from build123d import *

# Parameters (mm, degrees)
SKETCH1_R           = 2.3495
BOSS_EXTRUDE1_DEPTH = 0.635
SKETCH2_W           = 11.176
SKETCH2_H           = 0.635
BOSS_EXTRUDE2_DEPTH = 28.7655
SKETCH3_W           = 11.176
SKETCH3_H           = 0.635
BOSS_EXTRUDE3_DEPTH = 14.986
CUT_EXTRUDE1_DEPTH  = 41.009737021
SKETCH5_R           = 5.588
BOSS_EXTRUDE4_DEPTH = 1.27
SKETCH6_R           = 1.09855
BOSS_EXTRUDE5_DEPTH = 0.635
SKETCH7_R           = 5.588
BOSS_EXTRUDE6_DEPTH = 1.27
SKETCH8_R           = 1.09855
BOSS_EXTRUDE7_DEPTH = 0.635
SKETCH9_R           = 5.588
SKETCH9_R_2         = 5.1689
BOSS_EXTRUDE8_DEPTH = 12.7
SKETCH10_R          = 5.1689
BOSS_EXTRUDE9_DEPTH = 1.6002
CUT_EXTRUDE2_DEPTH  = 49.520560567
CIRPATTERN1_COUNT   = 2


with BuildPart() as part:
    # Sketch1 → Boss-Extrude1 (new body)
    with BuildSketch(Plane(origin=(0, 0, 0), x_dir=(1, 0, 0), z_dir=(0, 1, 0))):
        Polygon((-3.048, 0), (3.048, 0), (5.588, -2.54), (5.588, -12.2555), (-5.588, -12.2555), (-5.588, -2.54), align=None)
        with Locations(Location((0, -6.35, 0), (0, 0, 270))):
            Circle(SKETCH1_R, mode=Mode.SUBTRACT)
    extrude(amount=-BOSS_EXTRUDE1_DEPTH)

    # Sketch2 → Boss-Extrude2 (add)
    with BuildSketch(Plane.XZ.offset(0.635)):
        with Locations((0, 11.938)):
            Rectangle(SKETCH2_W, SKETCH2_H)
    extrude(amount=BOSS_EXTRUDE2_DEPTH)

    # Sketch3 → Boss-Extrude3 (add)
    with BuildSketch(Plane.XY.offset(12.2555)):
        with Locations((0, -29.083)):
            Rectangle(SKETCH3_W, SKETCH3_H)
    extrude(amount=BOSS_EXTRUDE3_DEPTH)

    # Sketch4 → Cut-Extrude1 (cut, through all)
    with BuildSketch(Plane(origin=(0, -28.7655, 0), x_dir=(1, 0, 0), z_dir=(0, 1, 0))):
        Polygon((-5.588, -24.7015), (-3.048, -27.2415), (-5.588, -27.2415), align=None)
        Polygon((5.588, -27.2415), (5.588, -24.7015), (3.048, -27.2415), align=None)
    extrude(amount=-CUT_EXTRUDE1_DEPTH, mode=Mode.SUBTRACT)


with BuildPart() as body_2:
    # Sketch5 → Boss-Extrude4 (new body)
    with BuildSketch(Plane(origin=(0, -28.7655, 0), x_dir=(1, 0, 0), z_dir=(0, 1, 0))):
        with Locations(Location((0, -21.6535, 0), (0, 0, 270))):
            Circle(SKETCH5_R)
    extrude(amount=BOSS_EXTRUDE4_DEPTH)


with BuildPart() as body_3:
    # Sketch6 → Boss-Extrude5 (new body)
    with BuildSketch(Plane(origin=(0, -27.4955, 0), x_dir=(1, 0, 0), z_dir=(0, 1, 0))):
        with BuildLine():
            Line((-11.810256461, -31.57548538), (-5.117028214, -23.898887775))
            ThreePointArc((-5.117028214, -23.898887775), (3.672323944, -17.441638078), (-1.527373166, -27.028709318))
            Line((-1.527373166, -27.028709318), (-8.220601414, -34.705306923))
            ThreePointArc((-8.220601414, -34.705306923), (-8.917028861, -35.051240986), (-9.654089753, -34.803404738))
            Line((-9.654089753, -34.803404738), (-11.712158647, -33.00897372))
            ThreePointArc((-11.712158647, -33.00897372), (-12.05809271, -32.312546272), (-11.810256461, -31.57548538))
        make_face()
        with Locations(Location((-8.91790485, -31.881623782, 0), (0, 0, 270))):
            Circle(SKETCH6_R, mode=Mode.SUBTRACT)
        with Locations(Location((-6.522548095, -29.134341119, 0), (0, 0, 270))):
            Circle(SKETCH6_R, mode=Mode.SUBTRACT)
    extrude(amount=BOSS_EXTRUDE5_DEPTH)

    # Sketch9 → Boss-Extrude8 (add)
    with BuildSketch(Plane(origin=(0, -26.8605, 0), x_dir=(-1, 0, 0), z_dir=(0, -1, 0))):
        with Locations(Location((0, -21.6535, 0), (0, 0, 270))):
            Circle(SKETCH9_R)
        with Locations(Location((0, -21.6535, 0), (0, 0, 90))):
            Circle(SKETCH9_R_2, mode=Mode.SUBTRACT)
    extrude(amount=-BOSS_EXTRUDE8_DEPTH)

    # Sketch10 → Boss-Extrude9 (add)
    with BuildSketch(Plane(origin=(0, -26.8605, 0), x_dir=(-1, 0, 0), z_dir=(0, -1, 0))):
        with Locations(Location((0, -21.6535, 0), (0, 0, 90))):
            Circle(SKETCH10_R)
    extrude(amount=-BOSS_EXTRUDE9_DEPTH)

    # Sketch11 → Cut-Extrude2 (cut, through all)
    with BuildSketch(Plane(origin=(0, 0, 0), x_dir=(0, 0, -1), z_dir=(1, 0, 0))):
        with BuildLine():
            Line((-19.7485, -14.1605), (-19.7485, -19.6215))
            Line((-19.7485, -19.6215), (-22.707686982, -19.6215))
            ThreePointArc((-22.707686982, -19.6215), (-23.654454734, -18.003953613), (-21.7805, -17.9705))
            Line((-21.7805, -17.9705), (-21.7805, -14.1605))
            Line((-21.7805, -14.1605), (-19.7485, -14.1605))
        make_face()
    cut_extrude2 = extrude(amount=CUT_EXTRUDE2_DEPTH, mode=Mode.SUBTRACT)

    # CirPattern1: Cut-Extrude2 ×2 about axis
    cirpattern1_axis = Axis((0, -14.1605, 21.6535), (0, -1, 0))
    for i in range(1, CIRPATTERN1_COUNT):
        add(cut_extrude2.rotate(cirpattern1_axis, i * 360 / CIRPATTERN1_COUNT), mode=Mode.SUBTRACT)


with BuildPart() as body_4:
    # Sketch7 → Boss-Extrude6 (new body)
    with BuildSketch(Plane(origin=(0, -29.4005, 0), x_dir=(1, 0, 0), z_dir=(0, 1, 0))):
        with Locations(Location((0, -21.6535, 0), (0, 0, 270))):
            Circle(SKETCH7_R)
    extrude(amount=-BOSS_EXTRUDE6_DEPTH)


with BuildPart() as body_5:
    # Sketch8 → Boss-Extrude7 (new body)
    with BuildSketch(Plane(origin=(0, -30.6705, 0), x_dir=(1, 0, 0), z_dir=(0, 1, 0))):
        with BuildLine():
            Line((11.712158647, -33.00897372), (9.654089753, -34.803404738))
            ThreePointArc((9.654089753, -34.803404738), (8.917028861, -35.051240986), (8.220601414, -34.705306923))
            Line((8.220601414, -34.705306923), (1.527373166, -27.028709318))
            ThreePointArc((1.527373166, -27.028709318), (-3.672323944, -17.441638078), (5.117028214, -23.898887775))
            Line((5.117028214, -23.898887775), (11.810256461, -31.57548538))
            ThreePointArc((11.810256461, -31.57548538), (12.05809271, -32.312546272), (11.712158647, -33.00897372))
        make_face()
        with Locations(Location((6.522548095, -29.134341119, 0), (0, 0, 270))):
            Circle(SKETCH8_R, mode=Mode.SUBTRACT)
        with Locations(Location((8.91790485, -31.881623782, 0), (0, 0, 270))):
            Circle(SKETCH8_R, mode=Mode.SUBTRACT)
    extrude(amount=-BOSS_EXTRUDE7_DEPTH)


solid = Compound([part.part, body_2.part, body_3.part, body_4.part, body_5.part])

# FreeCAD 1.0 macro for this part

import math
import FreeCAD as App
import Part
import Sketcher

V = App.Vector
Q = App.Units.Quantity


def add_polygon(sketch, points):
    """Adds a closed chain of lines whose ends are joined by coincident constraints."""
    first, n = sketch.GeometryCount, len(points)
    for a, b in zip(points, points[1:] + points[:1]):
        sketch.addGeometry(Part.LineSegment(App.Vector(*a, 0), App.Vector(*b, 0)), False)
    for i in range(n):
        sketch.addConstraint(Sketcher.Constraint("Coincident", first + i, 2, first + (i + 1) % n, 1))

doc = App.newDocument("Part")
body = doc.addObject("PartDesign::Body", "Body")

# Sketch on XZ plane
sketch1 = body.newObject("Sketcher::SketchObject", "Sketch")
sketch1.AttachmentSupport = (doc.getObject("XZ_Plane"), [""])
sketch1.MapMode = "FlatFace"
add_polygon(sketch1, [(3, 0), (-3, 0), (-5.6, 2.5), (-5.6, 12.3), (5.6, 12.3), (5.6, 2.5)])  # lines 0-5
sketch1.addGeometry(Part.Circle(V(0, 6.3, 0), V(0, 0, 1), 2.3), False)  # 6
sketch1.addConstraint(Sketcher.Constraint("Horizontal", 0))
sketch1.addConstraint(Sketcher.Constraint("Vertical", 2))
sketch1.addConstraint(Sketcher.Constraint("Horizontal", 3))
sketch1.addConstraint(Sketcher.Constraint("Vertical", 4))
sketch1.addConstraint(Sketcher.Constraint("Symmetric", 0, 2, 5, 2, -1, 1))
sketch1.addConstraint(Sketcher.Constraint("Symmetric", 1, 2, 4, 2, -2))
sketch1.addConstraint(Sketcher.Constraint("PointOnObject", 6, 3, -2))
sketch1.addConstraint(Sketcher.Constraint("Perpendicular", 1, 5))
sketch1.addConstraint(Sketcher.Constraint("Diameter", 6, Q("0.185 in")))
sketch1.addConstraint(Sketcher.Constraint("DistanceX", 0, 2, 0, 1, Q("0.24 in")))
sketch1.addConstraint(Sketcher.Constraint("DistanceX", 3, 1, 3, 2, Q("0.44 in")))
sketch1.addConstraint(Sketcher.Constraint("DistanceY", -1, 1, 6, 3, Q("0.25 in")))
sketch1.addConstraint(Sketcher.Constraint("DistanceY", 2, 1, 2, 2, Q("0.3825 in")))
pad1 = body.newObject("PartDesign::Pad", "Pad")
pad1.Profile = sketch1
pad1.Length = Q("0.025 in")

# Sketch on XZ plane
sketch2 = body.newObject("Sketcher::SketchObject", "Sketch001")
sketch2.AttachmentSupport = (doc.getObject("XZ_Plane"), [""])
sketch2.MapMode = "FlatFace"
sketch2.AttachmentOffset = App.Placement(V(0, 0, 0.025 * 25.4), App.Rotation())
add_polygon(sketch2, [(-5.6, 12.3), (-5.6, 11.6), (5.6, 11.6), (5.6, 12.3)])  # lines 0-3
sketch2.addConstraint(Sketcher.Constraint("Vertical", 0))
sketch2.addConstraint(Sketcher.Constraint("Horizontal", 1))
sketch2.addConstraint(Sketcher.Constraint("Vertical", 2))
sketch2.addConstraint(Sketcher.Constraint("Horizontal", 3))
sketch2.addConstraint(Sketcher.Constraint("DistanceX", 1, 1, 1, 2, Q("0.44 in")))
sketch2.addConstraint(Sketcher.Constraint("DistanceY", 0, 2, 0, 1, Q("0.025 in")))
sketch2.addConstraint(Sketcher.Constraint("DistanceX", 0, 2, -1, 1, Q("0.22 in")))
sketch2.addConstraint(Sketcher.Constraint("DistanceY", -1, 1, 0, 2, Q("0.4575 in")))
pad2 = body.newObject("PartDesign::Pad", "Pad001")
pad2.Profile = sketch2
pad2.Length = Q("1.1325 in")

# Sketch on XY plane
sketch3 = body.newObject("Sketcher::SketchObject", "Sketch002")
sketch3.AttachmentSupport = (doc.getObject("XY_Plane"), [""])
sketch3.MapMode = "FlatFace"
sketch3.AttachmentOffset = App.Placement(V(0, 0, 0.4825 * 25.4), App.Rotation())
add_polygon(sketch3, [(-5.6, -28.8), (-5.6, -29.4), (5.6, -29.4), (5.6, -28.8)])  # lines 0-3
sketch3.addConstraint(Sketcher.Constraint("Vertical", 0))
sketch3.addConstraint(Sketcher.Constraint("Horizontal", 1))
sketch3.addConstraint(Sketcher.Constraint("Vertical", 2))
sketch3.addConstraint(Sketcher.Constraint("Horizontal", 3))
sketch3.addConstraint(Sketcher.Constraint("DistanceX", 1, 1, 1, 2, Q("0.44 in")))
sketch3.addConstraint(Sketcher.Constraint("DistanceY", 0, 2, 0, 1, Q("0.025 in")))
sketch3.addConstraint(Sketcher.Constraint("DistanceX", 0, 2, -1, 1, Q("0.22 in")))
sketch3.addConstraint(Sketcher.Constraint("DistanceY", 0, 2, -1, 1, Q("1.1575 in")))
pad3 = body.newObject("PartDesign::Pad", "Pad002")
pad3.Profile = sketch3
pad3.Length = Q("0.59 in")

# Sketch on XZ plane
sketch4 = body.newObject("Sketcher::SketchObject", "Sketch003")
sketch4.AttachmentSupport = (doc.getObject("XZ_Plane"), [""])
sketch4.MapMode = "FlatFace"
sketch4.AttachmentOffset = App.Placement(V(0, 0, 1.1325 * 25.4), App.Rotation())
add_polygon(sketch4, [(-3, 27.2), (-5.6, 24.7), (-5.6, 27.2)])  # lines 0-2
add_polygon(sketch4, [(5.6, 27.2), (5.6, 24.7), (3, 27.2)])  # lines 3-5
sketch4.addConstraint(Sketcher.Constraint("Vertical", 1))
sketch4.addConstraint(Sketcher.Constraint("Horizontal", 2))
sketch4.addConstraint(Sketcher.Constraint("Vertical", 3))
sketch4.addConstraint(Sketcher.Constraint("Horizontal", 5))
sketch4.addConstraint(Sketcher.Constraint("Symmetric", 0, 2, 3, 2, -2))
sketch4.addConstraint(Sketcher.Constraint("Symmetric", 2, 2, 4, 2, -2))
sketch4.addConstraint(Sketcher.Constraint("Perpendicular", 0, 4))
sketch4.addConstraint(Sketcher.Constraint("DistanceX", 2, 1, 2, 2, Q("0.1 in")))
sketch4.addConstraint(Sketcher.Constraint("DistanceX", 0, 2, -1, 1, Q("0.22 in")))
sketch4.addConstraint(Sketcher.Constraint("DistanceY", -1, 1, 0, 2, Q("0.9725 in")))
pocket1 = body.newObject("PartDesign::Pocket", "Pocket")
pocket1.Profile = sketch4
pocket1.Type = "ThroughAll"
pocket1.Reversed = True
body2 = doc.addObject("PartDesign::Body", "Body001")

# Sketch on XZ plane
sketch5 = body2.newObject("Sketcher::SketchObject", "Sketch004")
sketch5.AttachmentSupport = (doc.getObject("XZ_Plane001"), [""])
sketch5.MapMode = "FlatFace"
sketch5.AttachmentOffset = App.Placement(V(0, 0, 1.1325 * 25.4), App.Rotation())
sketch5.addGeometry(Part.Circle(V(0, 22, 0), V(0, 0, 1), 6), False)
sketch5.addConstraint(Sketcher.Constraint("PointOnObject", 0, 3, -2))
sketch5.addConstraint(Sketcher.Constraint("Diameter", 0, Q("0.44 in")))
sketch5.addConstraint(Sketcher.Constraint("DistanceY", -1, 1, 0, 3, Q("0.8525 in")))
pad4 = body2.newObject("PartDesign::Pad", "Pad003")
pad4.Profile = sketch5
pad4.Length = Q("0.05 in")
pad4.Reversed = True
body3 = doc.addObject("PartDesign::Body", "Body002")

# Sketch on XZ plane
sketch6 = body3.newObject("Sketcher::SketchObject", "Sketch005")
sketch6.AttachmentSupport = (doc.getObject("XZ_Plane002"), [""])
sketch6.MapMode = "FlatFace"
sketch6.AttachmentOffset = App.Placement(V(0, 0, 1.0825 * 25.4), App.Rotation())
sketch6.addGeometry(Part.LineSegment(V(-5.1, 23.9, 0), V(-11.8, 31.6, 0)), False)
sketch6.addGeometry(Part.ArcOfCircle(Part.Circle(V(-11, 32.2, 0), V(0, 0, 1), 1), math.radians(131), math.radians(221)), False)
sketch6.addGeometry(Part.LineSegment(V(-11.7, 33, 0), V(-9.7, 34.8, 0)), False)
sketch6.addGeometry(Part.ArcOfCircle(Part.Circle(V(-9, 34, 0), V(0, 0, 1), 1), math.radians(41), math.radians(131)), False)
sketch6.addGeometry(Part.LineSegment(V(-8.2, 34.7, 0), V(-1.5, 27, 0)), False)
sketch6.addGeometry(Part.ArcOfCircle(Part.Circle(V(0, 21.7, 0), V(0, 0, 1), 5.6), math.radians(156), math.radians(466)), False)
sketch6.addGeometry(Part.Circle(V(-8.9, 31.9, 0), V(0, 0, 1), 1.1), False)
sketch6.addGeometry(Part.Circle(V(-6.5, 29.1, 0), V(0, 0, 1), 1.1), False)
sketch6.addConstraint(Sketcher.Constraint("Tangent", 0, 2, 1, 2))
sketch6.addConstraint(Sketcher.Constraint("Tangent", 1, 1, 2, 1))
sketch6.addConstraint(Sketcher.Constraint("Tangent", 2, 2, 3, 2))
sketch6.addConstraint(Sketcher.Constraint("Tangent", 3, 1, 4, 1))
sketch6.addConstraint(Sketcher.Constraint("Coincident", 4, 2, 5, 2))
sketch6.addConstraint(Sketcher.Constraint("Coincident", 5, 1, 0, 1))
sketch6.addConstraint(Sketcher.Constraint("Equal", 1, 3))
sketch6.addConstraint(Sketcher.Constraint("Equal", 6, 7))
sketch6.addConstraint(Sketcher.Constraint("PointOnObject", 5, 3, -2))
sketch6.addConstraint(Sketcher.Constraint("Perpendicular", 0, 2))
sketch6.addConstraint(Sketcher.Constraint("Perpendicular", 2, 4))
sketch6.addConstraint(Sketcher.Constraint("Equal", 0, 4))
sketch6.addConstraint(Sketcher.Constraint("Radius", 1, Q("0.04 in")))
sketch6.addConstraint(Sketcher.Constraint("Radius", 5, Q("0.22 in")))
sketch6.addConstraint(Sketcher.Constraint("Diameter", 6, Q("0.0865 in")))
sketch6.addConstraint(Sketcher.Constraint("Distance", 2, Q("0.1075 in")))
sketch6.addConstraint(Sketcher.Constraint("DistanceY", -1, 1, 5, 3, Q("0.8525 in")))
sketch6.addConstraint(Sketcher.Constraint("DistanceX", 3, 1, -1, 1, Q("8.220601 mm")))
sketch6.addConstraint(Sketcher.Constraint("DistanceY", -1, 1, 1, 3, Q("32.243181 mm")))
sketch6.addConstraint(Sketcher.Constraint("DistanceX", 7, 3, -1, 1, Q("6.522548 mm")))
sketch6.addConstraint(Sketcher.Constraint("DistanceY", -1, 1, 7, 3, Q("29.134341 mm")))
sketch6.addConstraint(Sketcher.Constraint("DistanceX", 3, 3, 6, 3, Q("0.06849 mm")))
sketch6.addConstraint(Sketcher.Constraint("DistanceY", 0, 2, 6, 3, Q("0.306138 mm")))
pad5 = body3.newObject("PartDesign::Pad", "Pad004")
pad5.Profile = sketch6
pad5.Length = Q("0.025 in")
pad5.Reversed = True

# Sketch on XZ plane
sketch7 = body3.newObject("Sketcher::SketchObject", "Sketch006")
sketch7.AttachmentSupport = (doc.getObject("XZ_Plane002"), [""])
sketch7.MapMode = "FlatFace"
sketch7.AttachmentOffset = App.Placement(V(0, 0, 1.0575 * 25.4), App.Rotation())
sketch7.addGeometry(Part.Circle(V(0, 22, 0), V(0, 0, 1), 6), False)
sketch7.addGeometry(Part.Circle(V(0, 22, 0), V(0, 0, 1), 5), False)
sketch7.addConstraint(Sketcher.Constraint("Coincident", 1, 3, 0, 3))
sketch7.addConstraint(Sketcher.Constraint("PointOnObject", 0, 3, -2))
sketch7.addConstraint(Sketcher.Constraint("Diameter", 0, Q("0.44 in")))
sketch7.addConstraint(Sketcher.Constraint("Diameter", 1, Q("0.407 in")))
sketch7.addConstraint(Sketcher.Constraint("DistanceY", -1, 1, 0, 3, Q("0.8525 in")))
pad6 = body3.newObject("PartDesign::Pad", "Pad005")
pad6.Profile = sketch7
pad6.Length = Q("0.5 in")
pad6.Reversed = True

# Sketch on XZ plane
sketch8 = body3.newObject("Sketcher::SketchObject", "Sketch007")
sketch8.AttachmentSupport = (doc.getObject("XZ_Plane002"), [""])
sketch8.MapMode = "FlatFace"
sketch8.AttachmentOffset = App.Placement(V(0, 0, 1.0575 * 25.4), App.Rotation())
sketch8.addGeometry(Part.Circle(V(0, 22, 0), V(0, 0, 1), 5), False)
sketch8.addConstraint(Sketcher.Constraint("PointOnObject", 0, 3, -2))
sketch8.addConstraint(Sketcher.Constraint("Diameter", 0, Q("0.407 in")))
sketch8.addConstraint(Sketcher.Constraint("DistanceY", -1, 1, 0, 3, Q("0.8525 in")))
pad7 = body3.newObject("PartDesign::Pad", "Pad006")
pad7.Profile = sketch8
pad7.Length = Q("0.063 in")
pad7.Reversed = True

# Sketch on YZ plane
sketch9 = body3.newObject("Sketcher::SketchObject", "Sketch008")
sketch9.AttachmentSupport = (doc.getObject("YZ_Plane002"), [""])
sketch9.MapMode = "FlatFace"
sketch9.addGeometry(Part.LineSegment(V(-19.6, 19.7, 0), V(-14.2, 19.7, 0)), False)
sketch9.addGeometry(Part.LineSegment(V(-14.2, 19.7, 0), V(-14.2, 21.8, 0)), False)
sketch9.addGeometry(Part.LineSegment(V(-14.2, 21.8, 0), V(-18, 21.8, 0)), False)
sketch9.addGeometry(Part.ArcOfCircle(Part.Circle(V(-18.5, 22.7, 0), V(0, 0, 1), 1.1), math.radians(-59), math.radians(180)), False)
sketch9.addGeometry(Part.LineSegment(V(-19.6, 22.7, 0), V(-19.6, 19.7, 0)), False)
sketch9.addConstraint(Sketcher.Constraint("Coincident", 0, 2, 1, 1))
sketch9.addConstraint(Sketcher.Constraint("Coincident", 1, 2, 2, 1))
sketch9.addConstraint(Sketcher.Constraint("Coincident", 2, 2, 3, 1))
sketch9.addConstraint(Sketcher.Constraint("Tangent", 3, 2, 4, 1))
sketch9.addConstraint(Sketcher.Constraint("Coincident", 4, 2, 0, 1))
sketch9.addConstraint(Sketcher.Constraint("Horizontal", 0))
sketch9.addConstraint(Sketcher.Constraint("Vertical", 1))
sketch9.addConstraint(Sketcher.Constraint("Horizontal", 2))
sketch9.addConstraint(Sketcher.Constraint("Vertical", 4))
sketch9.addConstraint(Sketcher.Constraint("DistanceX", 2, 2, 2, 1, Q("0.15 in")))
sketch9.addConstraint(Sketcher.Constraint("DistanceY", 1, 1, 1, 2, Q("0.08 in")))
sketch9.addConstraint(Sketcher.Constraint("DistanceX", 0, 1, 0, 2, Q("0.215 in")))
sketch9.addConstraint(Sketcher.Constraint("Radius", 3, Q("1.08585 mm")))
sketch9.addConstraint(Sketcher.Constraint("DistanceX", 0, 2, -1, 1, Q("0.5575 in")))
sketch9.addConstraint(Sketcher.Constraint("DistanceY", -1, 1, 0, 2, Q("0.7775 in")))
pocket2 = body3.newObject("PartDesign::Pocket", "Pocket001")
pocket2.Profile = sketch9
pocket2.Type = "ThroughAll"
pocket2.Reversed = True
doc.recompute()

datumline = body3.newObject("PartDesign::Line", "DatumLine")
datumline.Placement = App.Placement(V(0, 0, 21.6535), App.Rotation(V(0, 0, 1), V(0, -1, 0)))
polarpattern = body3.newObject("PartDesign::PolarPattern", "PolarPattern")
polarpattern.Originals = [pocket2]
polarpattern.Axis = (datumline, [""])
polarpattern.Angle = 360
polarpattern.Occurrences = 2
body3.Tip = polarpattern
body4 = doc.addObject("PartDesign::Body", "Body003")

# Sketch on XZ plane
sketch10 = body4.newObject("Sketcher::SketchObject", "Sketch009")
sketch10.AttachmentSupport = (doc.getObject("XZ_Plane003"), [""])
sketch10.MapMode = "FlatFace"
sketch10.AttachmentOffset = App.Placement(V(0, 0, 1.1575 * 25.4), App.Rotation())
sketch10.addGeometry(Part.Circle(V(0, 22, 0), V(0, 0, 1), 6), False)
sketch10.addConstraint(Sketcher.Constraint("PointOnObject", 0, 3, -2))
sketch10.addConstraint(Sketcher.Constraint("Diameter", 0, Q("0.44 in")))
sketch10.addConstraint(Sketcher.Constraint("DistanceY", -1, 1, 0, 3, Q("0.8525 in")))
pad8 = body4.newObject("PartDesign::Pad", "Pad007")
pad8.Profile = sketch10
pad8.Length = Q("0.05 in")
body5 = doc.addObject("PartDesign::Body", "Body004")

# Sketch on XZ plane
sketch11 = body5.newObject("Sketcher::SketchObject", "Sketch010")
sketch11.AttachmentSupport = (doc.getObject("XZ_Plane004"), [""])
sketch11.MapMode = "FlatFace"
sketch11.AttachmentOffset = App.Placement(V(0, 0, 1.2075 * 25.4), App.Rotation())
sketch11.addGeometry(Part.LineSegment(V(9.7, 34.8, 0), V(11.7, 33, 0)), False)
sketch11.addGeometry(Part.ArcOfCircle(Part.Circle(V(11, 32.2, 0), V(0, 0, 1), 1), math.radians(-41), math.radians(49)), False)
sketch11.addGeometry(Part.LineSegment(V(11.8, 31.6, 0), V(5.1, 23.9, 0)), False)
sketch11.addGeometry(Part.ArcOfCircle(Part.Circle(V(0, 21.7, 0), V(0, 0, 1), 5.6), math.radians(74), math.radians(384)), False)
sketch11.addGeometry(Part.LineSegment(V(1.5, 27, 0), V(8.2, 34.7, 0)), False)
sketch11.addGeometry(Part.ArcOfCircle(Part.Circle(V(9, 34, 0), V(0, 0, 1), 1), math.radians(49), math.radians(139)), False)
sketch11.addGeometry(Part.Circle(V(8.9, 31.9, 0), V(0, 0, 1), 1.1), False)
sketch11.addGeometry(Part.Circle(V(6.5, 29.1, 0), V(0, 0, 1), 1.1), False)
sketch11.addConstraint(Sketcher.Constraint("Tangent", 0, 2, 1, 2))
sketch11.addConstraint(Sketcher.Constraint("Tangent", 1, 1, 2, 1))
sketch11.addConstraint(Sketcher.Constraint("Coincident", 2, 2, 3, 2))
sketch11.addConstraint(Sketcher.Constraint("Coincident", 3, 1, 4, 1))
sketch11.addConstraint(Sketcher.Constraint("Tangent", 4, 2, 5, 2))
sketch11.addConstraint(Sketcher.Constraint("Tangent", 5, 1, 0, 1))
sketch11.addConstraint(Sketcher.Constraint("Equal", 1, 5))
sketch11.addConstraint(Sketcher.Constraint("Equal", 6, 7))
sketch11.addConstraint(Sketcher.Constraint("PointOnObject", 3, 3, -2))
sketch11.addConstraint(Sketcher.Constraint("Perpendicular", 0, 2))
sketch11.addConstraint(Sketcher.Constraint("Parallel", 2, 4))
sketch11.addConstraint(Sketcher.Constraint("Equal", 2, 4))
sketch11.addConstraint(Sketcher.Constraint("Radius", 1, Q("0.04 in")))
sketch11.addConstraint(Sketcher.Constraint("Radius", 3, Q("0.22 in")))
sketch11.addConstraint(Sketcher.Constraint("Diameter", 6, Q("0.0865 in")))
sketch11.addConstraint(Sketcher.Constraint("Distance", 0, Q("0.1075 in")))
sketch11.addConstraint(Sketcher.Constraint("DistanceY", -1, 1, 3, 3, Q("0.8525 in")))
sketch11.addConstraint(Sketcher.Constraint("DistanceX", -1, 1, 4, 2, Q("8.220601 mm")))
sketch11.addConstraint(Sketcher.Constraint("DistanceY", -1, 1, 1, 3, Q("32.243181 mm")))
sketch11.addConstraint(Sketcher.Constraint("DistanceX", -1, 1, 7, 3, Q("6.522548 mm")))
sketch11.addConstraint(Sketcher.Constraint("DistanceY", -1, 1, 7, 3, Q("29.134341 mm")))
sketch11.addConstraint(Sketcher.Constraint("DistanceX", 6, 3, 5, 3, Q("0.06849 mm")))
sketch11.addConstraint(Sketcher.Constraint("DistanceY", 6, 3, 0, 2, Q("1.12735 mm")))
pad9 = body5.newObject("PartDesign::Pad", "Pad008")
pad9.Profile = sketch11
pad9.Length = Q("0.025 in")

doc.recompute()
